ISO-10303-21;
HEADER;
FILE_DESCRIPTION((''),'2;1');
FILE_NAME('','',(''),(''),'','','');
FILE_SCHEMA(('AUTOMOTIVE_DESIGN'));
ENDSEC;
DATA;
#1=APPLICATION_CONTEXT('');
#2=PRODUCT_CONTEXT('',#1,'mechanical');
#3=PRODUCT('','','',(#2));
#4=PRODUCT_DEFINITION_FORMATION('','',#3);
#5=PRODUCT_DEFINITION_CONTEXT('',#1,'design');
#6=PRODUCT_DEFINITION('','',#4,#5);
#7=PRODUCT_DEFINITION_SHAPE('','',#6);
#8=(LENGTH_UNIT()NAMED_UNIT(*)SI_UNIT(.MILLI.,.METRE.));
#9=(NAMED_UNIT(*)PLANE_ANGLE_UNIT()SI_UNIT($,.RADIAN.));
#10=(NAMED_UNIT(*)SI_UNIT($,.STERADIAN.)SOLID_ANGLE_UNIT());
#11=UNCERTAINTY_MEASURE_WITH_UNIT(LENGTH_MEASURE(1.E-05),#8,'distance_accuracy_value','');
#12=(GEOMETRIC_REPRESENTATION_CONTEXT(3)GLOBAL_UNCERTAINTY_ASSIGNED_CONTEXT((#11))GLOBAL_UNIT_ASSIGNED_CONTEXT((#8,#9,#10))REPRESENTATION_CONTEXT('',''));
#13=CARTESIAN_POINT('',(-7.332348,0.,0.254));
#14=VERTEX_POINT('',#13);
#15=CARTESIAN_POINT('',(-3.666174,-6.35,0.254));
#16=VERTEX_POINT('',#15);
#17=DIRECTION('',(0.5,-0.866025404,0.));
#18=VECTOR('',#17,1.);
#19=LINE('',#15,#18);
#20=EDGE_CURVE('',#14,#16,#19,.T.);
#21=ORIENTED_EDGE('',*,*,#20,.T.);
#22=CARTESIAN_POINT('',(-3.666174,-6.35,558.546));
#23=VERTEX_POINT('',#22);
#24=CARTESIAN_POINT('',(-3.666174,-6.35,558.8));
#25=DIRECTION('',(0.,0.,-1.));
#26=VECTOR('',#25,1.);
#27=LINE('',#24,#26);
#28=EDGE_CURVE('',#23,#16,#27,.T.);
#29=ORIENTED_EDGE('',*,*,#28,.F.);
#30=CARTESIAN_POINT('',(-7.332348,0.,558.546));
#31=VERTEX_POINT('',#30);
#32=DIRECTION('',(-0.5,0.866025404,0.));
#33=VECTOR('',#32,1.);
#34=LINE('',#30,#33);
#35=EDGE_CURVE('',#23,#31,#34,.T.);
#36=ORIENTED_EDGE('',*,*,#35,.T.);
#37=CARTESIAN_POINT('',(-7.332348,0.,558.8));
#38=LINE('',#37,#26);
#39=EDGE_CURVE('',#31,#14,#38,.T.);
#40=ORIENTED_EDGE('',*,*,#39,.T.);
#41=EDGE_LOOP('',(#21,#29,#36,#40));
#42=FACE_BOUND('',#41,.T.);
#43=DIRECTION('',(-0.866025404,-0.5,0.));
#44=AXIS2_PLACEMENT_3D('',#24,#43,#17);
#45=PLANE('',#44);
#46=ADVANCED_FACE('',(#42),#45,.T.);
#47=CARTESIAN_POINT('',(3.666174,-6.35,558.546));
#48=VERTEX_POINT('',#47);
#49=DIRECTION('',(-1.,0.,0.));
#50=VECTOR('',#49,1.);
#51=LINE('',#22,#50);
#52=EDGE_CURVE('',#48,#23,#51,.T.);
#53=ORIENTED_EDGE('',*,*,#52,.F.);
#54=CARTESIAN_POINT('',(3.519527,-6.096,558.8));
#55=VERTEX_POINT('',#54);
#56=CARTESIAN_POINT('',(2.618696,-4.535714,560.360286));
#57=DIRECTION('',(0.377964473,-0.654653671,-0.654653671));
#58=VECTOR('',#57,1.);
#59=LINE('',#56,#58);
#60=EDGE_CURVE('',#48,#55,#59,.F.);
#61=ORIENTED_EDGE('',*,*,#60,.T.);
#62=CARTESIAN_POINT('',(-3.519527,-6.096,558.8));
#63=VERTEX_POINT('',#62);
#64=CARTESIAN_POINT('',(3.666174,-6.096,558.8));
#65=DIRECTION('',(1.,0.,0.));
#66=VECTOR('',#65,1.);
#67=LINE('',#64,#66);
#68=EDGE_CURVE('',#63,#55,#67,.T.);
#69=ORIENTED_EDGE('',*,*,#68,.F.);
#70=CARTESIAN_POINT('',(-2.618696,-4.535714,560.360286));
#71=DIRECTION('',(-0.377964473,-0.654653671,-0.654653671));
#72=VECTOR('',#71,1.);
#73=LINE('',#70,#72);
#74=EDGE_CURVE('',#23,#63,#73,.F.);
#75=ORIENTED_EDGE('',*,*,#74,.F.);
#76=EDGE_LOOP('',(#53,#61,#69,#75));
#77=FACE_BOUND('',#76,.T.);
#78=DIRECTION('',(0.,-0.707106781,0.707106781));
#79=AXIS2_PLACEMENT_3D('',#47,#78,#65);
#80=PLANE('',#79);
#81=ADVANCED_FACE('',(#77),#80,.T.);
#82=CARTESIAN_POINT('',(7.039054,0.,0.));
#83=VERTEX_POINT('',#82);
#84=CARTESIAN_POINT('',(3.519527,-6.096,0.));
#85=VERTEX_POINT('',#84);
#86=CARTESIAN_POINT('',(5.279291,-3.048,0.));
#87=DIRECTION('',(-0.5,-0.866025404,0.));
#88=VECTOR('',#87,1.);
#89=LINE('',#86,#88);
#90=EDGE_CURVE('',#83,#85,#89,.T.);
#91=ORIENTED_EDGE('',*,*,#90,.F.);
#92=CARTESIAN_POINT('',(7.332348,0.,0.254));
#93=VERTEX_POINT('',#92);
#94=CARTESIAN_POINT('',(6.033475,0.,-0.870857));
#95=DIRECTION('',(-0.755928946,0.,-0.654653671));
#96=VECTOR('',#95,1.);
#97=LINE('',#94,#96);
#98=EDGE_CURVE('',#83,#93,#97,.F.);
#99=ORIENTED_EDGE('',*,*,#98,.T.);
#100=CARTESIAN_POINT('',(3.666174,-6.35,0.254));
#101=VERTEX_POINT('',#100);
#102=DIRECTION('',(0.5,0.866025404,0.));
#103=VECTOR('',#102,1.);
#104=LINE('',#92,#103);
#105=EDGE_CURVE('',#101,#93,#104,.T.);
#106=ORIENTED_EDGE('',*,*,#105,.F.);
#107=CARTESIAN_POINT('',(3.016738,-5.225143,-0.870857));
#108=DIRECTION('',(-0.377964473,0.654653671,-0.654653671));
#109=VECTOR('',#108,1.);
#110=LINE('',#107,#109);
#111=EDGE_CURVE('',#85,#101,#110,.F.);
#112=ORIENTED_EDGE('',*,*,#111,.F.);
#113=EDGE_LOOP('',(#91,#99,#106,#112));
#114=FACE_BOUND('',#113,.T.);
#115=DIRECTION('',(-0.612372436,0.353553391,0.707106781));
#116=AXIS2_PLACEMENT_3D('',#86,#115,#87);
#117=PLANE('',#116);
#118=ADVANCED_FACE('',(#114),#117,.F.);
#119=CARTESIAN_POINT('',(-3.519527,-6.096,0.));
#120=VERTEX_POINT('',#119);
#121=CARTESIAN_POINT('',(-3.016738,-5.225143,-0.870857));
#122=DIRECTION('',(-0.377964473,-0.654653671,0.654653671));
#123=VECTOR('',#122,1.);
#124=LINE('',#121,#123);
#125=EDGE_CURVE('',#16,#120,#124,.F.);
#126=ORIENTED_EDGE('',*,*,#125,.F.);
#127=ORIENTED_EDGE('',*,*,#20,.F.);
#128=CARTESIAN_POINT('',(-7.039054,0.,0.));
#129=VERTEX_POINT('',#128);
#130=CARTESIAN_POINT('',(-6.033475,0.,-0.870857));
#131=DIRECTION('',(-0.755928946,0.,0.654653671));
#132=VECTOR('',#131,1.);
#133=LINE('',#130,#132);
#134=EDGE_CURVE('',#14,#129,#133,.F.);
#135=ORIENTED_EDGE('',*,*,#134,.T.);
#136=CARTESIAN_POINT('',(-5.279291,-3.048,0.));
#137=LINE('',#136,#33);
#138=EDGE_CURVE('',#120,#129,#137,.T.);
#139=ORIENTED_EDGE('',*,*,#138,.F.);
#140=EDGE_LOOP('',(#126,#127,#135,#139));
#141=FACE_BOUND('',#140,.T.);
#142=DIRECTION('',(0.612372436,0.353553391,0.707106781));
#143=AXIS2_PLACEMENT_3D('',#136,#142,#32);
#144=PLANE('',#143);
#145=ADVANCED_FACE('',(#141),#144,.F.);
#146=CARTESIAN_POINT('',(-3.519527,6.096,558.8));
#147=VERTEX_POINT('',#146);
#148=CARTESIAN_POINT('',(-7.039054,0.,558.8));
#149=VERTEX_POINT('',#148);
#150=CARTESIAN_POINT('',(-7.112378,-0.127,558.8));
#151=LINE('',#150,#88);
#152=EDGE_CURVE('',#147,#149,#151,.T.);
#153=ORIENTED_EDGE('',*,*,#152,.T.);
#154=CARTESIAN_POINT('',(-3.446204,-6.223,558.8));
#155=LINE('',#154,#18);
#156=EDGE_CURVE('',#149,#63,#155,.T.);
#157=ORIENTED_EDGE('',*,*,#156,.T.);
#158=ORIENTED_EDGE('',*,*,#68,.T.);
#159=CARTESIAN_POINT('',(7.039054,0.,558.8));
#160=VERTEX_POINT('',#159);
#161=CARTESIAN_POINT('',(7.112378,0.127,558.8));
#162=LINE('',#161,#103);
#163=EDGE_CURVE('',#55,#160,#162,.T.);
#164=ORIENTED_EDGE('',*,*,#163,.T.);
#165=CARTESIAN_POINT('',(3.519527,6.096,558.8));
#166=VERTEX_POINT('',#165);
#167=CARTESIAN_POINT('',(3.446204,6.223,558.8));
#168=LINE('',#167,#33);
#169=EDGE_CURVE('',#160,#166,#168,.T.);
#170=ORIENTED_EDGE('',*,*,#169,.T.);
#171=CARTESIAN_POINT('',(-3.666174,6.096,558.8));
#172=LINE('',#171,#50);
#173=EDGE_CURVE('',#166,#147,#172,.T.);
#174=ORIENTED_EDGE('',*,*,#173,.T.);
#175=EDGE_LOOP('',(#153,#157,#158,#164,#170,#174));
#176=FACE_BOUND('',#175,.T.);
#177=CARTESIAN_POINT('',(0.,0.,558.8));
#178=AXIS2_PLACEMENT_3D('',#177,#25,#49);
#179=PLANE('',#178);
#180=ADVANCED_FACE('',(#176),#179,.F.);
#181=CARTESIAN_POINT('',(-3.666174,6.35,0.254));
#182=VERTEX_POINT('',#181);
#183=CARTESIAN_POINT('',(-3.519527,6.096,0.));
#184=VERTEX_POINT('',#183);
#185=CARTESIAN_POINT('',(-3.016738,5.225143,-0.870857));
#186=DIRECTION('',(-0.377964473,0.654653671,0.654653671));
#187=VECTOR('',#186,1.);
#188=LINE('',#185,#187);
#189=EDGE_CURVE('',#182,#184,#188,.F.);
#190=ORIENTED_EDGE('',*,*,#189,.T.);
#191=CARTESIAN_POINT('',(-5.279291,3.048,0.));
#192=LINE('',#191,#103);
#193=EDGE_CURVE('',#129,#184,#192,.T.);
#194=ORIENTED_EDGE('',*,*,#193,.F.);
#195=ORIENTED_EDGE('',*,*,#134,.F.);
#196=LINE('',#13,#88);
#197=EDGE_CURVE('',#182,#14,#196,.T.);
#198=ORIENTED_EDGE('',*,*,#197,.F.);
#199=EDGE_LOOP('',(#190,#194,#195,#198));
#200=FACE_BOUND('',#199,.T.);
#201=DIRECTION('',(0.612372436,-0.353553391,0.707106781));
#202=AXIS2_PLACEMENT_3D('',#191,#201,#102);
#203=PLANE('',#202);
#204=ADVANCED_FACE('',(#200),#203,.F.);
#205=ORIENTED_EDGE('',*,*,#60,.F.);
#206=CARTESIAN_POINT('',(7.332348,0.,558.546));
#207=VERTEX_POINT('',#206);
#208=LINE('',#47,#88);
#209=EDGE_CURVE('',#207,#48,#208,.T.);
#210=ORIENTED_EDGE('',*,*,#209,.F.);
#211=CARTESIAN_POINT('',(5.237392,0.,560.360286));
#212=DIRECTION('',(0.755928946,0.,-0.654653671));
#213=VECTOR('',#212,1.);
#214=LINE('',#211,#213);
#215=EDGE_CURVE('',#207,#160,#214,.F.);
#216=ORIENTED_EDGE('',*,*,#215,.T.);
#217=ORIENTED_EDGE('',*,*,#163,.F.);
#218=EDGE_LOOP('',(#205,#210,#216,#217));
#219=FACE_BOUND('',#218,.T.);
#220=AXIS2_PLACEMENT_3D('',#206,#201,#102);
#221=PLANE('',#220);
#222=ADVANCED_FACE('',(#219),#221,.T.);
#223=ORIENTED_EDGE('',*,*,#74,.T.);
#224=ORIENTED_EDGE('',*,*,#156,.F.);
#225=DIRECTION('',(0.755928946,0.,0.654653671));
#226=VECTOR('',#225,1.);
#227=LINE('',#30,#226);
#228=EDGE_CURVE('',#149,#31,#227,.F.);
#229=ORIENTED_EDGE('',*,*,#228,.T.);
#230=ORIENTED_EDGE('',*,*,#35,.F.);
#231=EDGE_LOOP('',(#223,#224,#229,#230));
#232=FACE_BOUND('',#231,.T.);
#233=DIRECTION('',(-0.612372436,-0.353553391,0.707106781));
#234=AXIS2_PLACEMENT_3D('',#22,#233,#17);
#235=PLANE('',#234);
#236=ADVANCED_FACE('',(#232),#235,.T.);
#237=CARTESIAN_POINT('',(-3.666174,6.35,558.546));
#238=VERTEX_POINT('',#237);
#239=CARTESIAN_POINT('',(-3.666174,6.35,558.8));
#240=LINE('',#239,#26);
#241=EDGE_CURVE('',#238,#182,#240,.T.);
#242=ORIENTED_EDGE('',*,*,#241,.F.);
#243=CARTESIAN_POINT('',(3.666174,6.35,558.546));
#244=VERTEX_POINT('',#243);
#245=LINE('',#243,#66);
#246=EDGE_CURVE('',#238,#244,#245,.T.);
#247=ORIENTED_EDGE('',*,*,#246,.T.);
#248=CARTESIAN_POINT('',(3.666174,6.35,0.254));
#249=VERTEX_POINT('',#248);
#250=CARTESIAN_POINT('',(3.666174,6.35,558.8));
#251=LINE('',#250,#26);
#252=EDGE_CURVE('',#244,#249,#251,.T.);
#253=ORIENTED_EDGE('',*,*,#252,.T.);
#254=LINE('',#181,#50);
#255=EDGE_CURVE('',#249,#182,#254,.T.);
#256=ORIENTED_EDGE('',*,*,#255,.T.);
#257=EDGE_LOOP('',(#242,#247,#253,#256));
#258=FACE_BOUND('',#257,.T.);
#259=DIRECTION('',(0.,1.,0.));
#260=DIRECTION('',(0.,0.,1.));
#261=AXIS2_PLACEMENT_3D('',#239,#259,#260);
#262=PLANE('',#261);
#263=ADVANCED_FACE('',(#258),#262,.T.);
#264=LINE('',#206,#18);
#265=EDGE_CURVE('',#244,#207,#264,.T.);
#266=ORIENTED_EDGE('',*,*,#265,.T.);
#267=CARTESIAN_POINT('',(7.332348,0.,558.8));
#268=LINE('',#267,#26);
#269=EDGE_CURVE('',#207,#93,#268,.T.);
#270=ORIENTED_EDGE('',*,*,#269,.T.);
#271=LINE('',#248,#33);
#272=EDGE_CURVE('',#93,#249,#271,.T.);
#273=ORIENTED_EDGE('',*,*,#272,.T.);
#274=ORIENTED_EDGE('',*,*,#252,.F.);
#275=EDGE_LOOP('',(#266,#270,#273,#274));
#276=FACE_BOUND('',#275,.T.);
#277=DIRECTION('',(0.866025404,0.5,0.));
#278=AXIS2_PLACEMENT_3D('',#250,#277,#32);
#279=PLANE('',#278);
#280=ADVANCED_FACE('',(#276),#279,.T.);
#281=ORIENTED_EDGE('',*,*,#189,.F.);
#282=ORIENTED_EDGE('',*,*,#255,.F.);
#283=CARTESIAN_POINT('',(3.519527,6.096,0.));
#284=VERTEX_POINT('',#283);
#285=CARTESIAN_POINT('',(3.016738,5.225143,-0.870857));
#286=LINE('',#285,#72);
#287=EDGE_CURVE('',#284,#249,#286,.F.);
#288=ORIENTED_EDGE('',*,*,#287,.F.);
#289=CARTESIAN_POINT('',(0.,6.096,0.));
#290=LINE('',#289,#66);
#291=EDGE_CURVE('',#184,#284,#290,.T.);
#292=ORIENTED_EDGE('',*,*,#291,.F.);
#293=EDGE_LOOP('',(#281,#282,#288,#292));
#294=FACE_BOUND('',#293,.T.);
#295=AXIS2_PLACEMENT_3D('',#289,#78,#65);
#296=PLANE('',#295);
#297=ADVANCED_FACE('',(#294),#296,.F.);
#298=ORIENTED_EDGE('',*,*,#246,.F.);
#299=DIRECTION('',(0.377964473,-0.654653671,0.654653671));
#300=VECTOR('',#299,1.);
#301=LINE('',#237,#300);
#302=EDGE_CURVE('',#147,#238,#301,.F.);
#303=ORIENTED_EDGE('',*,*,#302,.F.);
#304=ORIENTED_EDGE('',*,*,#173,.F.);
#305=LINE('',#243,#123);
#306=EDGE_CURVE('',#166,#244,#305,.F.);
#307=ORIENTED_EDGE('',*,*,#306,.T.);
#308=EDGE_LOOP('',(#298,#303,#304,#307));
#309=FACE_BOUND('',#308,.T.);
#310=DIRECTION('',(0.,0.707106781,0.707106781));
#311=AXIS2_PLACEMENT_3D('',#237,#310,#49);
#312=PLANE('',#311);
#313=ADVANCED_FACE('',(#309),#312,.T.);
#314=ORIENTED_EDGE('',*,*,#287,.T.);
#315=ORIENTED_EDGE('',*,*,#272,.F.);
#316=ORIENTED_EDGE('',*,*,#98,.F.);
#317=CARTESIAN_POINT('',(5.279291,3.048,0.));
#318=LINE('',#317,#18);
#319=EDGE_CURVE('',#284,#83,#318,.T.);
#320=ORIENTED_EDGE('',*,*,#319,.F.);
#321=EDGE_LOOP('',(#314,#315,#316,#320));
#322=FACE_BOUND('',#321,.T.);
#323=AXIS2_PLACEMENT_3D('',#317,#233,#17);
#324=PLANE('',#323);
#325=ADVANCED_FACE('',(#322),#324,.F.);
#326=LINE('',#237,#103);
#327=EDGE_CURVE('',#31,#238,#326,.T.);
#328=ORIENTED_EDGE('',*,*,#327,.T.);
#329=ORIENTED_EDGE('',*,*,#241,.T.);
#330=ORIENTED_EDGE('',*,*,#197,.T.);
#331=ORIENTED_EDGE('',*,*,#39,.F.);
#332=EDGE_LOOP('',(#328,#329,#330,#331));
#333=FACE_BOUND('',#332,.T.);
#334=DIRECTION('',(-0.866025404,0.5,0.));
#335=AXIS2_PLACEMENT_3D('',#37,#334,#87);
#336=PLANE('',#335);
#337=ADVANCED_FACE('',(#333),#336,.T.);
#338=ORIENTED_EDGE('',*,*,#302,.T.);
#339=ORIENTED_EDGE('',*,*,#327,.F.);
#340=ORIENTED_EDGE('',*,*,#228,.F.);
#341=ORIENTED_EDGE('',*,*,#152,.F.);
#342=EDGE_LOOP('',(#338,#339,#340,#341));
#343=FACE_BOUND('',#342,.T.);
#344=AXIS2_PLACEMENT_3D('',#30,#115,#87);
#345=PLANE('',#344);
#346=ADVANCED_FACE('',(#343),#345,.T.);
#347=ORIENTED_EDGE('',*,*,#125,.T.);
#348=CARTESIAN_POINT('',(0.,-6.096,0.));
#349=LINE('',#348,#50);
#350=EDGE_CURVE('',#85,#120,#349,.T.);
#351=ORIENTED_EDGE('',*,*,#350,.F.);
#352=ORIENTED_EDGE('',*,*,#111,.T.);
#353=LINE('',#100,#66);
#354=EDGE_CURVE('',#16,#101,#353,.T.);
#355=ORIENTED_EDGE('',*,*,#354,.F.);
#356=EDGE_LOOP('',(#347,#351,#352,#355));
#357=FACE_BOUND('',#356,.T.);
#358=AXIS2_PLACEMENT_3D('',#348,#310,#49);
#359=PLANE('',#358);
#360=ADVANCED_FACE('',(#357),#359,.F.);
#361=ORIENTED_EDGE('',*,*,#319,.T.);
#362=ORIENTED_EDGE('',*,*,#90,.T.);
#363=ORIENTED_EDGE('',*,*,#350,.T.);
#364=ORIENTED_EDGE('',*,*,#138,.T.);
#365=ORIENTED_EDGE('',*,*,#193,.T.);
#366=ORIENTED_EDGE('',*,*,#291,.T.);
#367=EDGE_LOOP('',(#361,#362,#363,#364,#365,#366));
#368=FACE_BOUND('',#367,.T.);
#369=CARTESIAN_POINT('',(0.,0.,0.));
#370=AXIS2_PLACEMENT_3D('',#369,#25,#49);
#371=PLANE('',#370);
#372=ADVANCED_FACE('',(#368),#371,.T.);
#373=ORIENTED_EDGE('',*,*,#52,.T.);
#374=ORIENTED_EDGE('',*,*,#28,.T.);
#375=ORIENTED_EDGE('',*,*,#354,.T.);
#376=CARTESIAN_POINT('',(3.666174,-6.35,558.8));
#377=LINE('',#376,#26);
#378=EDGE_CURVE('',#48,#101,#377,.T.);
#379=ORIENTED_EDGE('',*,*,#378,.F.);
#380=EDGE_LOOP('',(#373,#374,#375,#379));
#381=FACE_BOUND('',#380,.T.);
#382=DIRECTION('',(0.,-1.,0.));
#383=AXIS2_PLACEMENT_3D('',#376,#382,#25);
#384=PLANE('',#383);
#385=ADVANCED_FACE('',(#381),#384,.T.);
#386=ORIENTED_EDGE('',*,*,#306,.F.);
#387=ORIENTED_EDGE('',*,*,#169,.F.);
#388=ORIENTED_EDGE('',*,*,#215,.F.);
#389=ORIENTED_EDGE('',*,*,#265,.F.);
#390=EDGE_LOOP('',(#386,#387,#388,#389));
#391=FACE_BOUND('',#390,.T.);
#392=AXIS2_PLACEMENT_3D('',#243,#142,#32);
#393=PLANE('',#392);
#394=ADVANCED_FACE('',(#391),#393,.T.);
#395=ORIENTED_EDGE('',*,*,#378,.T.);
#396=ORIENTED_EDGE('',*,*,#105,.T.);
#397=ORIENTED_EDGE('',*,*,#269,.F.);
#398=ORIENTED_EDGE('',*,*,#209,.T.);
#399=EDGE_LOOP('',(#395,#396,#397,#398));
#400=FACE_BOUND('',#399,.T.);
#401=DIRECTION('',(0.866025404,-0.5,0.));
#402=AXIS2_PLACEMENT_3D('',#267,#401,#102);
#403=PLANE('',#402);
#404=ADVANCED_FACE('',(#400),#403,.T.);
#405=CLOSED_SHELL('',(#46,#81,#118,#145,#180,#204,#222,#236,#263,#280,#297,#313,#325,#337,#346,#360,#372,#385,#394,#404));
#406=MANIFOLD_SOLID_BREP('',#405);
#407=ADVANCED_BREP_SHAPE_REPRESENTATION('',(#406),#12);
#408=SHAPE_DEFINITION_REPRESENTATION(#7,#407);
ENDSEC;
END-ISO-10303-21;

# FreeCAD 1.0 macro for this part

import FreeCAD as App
import Part
import Sketcher

V = App.Vector
Q = App.Units.Quantity


def edges_at(feature, points):
    """Names of the edges that pass closest to the given points."""
    edges = feature.Shape.Edges
    near = lambda p: min(range(len(edges)), key=lambda i: edges[i].distToShape(Part.Vertex(*p))[0])
    return sorted({f"Edge{near(p) + 1}" for p in points})


def add_polygon(sketch, points):
    """Adds a closed chain of lines whose ends are joined by coincident constraints."""
    first, n = sketch.GeometryCount, len(points)
    for a, b in zip(points, points[1:] + points[:1]):
        sketch.addGeometry(Part.LineSegment(App.Vector(*a, 0), App.Vector(*b, 0)), False)
    for i in range(n):
        sketch.addConstraint(Sketcher.Constraint("Coincident", first + i, 2, first + (i + 1) % n, 1))

doc = App.newDocument("Part")
body = doc.addObject("PartDesign::Body", "Body")

# Sketch on XY plane
sketch1 = body.newObject("Sketcher::SketchObject", "Sketch")
sketch1.AttachmentSupport = (doc.getObject("XY_Plane"), [""])
sketch1.MapMode = "FlatFace"
add_polygon(sketch1, [(-3.666174, 6.35), (3.666174, 6.35), (7.332348, 0), (3.666174, -6.35), (-3.666174, -6.35), (-7.332348, 0)])  # lines 0-5
sketch1.addConstraint([
    Sketcher.Constraint("Horizontal", 0),
    Sketcher.Constraint("Horizontal", 3),
    Sketcher.Constraint("Symmetric", 0, 2, 3, 2, -1, 1),
    Sketcher.Constraint("Symmetric", 1, 2, 4, 2, -1, 1),
    Sketcher.Constraint("PointOnObject", 1, 2, -1),
    Sketcher.Constraint("Parallel", 2, 5),
    Sketcher.Constraint("Vertical", 0, 2, 2, 2),
    Sketcher.Constraint("Angle", 1, Q("-60 deg")),
    Sketcher.Constraint("DistanceY", 2, 2, 0, 2, Q("0.5 in")),
    Sketcher.Constraint("DistanceX", 0, 1, 0, 2, 7.332348),
])
pad1 = body.newObject("PartDesign::Pad", "Pad")
pad1.Profile = sketch1
pad1.Length = Q("22 in")
doc.recompute()

chamfer = body.newObject("PartDesign::Chamfer", "Chamfer")
chamfer.Base = (pad1, edges_at(pad1, [
    (5.499, 3.175, 558.8),
    (5.499, -3.175, 558.8),
    (0, -6.35, 558.8),
    (-5.499, -3.175, 558.8),
    (-5.499, 3.175, 558.8),
    (-5.499, -3.175, 0),
    (0, -6.35, 0),
    (5.499, -3.175, 0),
    (5.499, 3.175, 0),
    (0, 6.35, 0),
    (-5.499, 3.175, 0),
    (0, 6.35, 558.8),
]))
chamfer.Size = Q("0.01 in")

doc.recompute()
